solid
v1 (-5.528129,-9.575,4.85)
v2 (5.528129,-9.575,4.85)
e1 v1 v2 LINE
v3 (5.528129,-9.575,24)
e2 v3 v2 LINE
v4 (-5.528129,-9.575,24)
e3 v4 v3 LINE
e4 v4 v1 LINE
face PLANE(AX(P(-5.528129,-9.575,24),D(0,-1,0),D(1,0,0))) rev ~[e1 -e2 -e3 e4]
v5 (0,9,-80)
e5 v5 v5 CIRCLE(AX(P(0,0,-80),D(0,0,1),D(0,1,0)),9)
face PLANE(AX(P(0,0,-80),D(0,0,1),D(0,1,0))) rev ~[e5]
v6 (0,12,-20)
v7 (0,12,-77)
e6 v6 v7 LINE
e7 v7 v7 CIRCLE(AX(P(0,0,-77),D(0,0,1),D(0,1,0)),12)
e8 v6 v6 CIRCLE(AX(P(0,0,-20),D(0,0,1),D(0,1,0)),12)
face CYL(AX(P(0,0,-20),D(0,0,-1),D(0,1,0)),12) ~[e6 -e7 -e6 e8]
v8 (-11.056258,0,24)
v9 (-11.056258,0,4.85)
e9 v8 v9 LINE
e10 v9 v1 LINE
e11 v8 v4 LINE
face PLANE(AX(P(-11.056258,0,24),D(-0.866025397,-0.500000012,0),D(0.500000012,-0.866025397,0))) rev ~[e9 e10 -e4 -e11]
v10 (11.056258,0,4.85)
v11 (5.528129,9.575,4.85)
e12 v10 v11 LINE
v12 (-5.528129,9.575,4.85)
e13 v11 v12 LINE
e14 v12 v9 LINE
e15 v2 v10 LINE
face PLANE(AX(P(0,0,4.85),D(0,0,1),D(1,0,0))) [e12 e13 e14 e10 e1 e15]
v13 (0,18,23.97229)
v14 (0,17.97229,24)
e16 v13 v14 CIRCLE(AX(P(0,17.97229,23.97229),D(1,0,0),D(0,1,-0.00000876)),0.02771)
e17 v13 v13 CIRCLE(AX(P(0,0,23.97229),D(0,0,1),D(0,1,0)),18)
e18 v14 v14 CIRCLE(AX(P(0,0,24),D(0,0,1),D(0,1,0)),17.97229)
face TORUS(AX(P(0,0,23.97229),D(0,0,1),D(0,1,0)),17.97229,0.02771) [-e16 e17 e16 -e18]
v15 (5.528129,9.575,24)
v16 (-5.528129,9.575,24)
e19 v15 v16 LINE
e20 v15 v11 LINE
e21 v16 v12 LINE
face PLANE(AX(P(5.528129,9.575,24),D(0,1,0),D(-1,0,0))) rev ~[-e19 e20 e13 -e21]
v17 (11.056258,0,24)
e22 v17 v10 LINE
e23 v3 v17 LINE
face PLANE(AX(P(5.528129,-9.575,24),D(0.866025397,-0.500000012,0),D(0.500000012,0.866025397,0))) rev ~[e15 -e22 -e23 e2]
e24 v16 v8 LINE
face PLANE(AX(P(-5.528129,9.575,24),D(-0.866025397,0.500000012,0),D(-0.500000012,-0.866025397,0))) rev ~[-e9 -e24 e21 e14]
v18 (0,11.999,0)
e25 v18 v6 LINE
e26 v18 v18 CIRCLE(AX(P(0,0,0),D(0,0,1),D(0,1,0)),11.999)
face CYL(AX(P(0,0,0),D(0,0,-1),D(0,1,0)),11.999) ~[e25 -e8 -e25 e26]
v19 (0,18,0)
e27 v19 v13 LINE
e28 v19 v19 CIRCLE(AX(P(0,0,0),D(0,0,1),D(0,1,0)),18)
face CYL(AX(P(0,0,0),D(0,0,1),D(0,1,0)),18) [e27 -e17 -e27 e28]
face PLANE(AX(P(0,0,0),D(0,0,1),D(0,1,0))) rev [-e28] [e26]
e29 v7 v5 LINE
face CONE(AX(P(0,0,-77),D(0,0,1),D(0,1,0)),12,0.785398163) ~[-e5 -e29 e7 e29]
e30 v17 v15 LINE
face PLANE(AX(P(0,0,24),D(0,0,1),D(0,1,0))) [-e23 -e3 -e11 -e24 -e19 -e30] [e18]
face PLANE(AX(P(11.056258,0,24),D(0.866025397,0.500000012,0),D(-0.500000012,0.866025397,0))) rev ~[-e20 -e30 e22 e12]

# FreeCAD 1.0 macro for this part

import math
import FreeCAD as App
import Part
import Sketcher
Q = App.Units.Quantity

doc = App.newDocument("Part")
params = doc.addObject("Spreadsheet::Sheet", "Params")
for row, (alias, value) in enumerate([
    ("sketch1_width", "9 mm"),
    ("sketch1_height", "104 mm"),
    ("sketch1_height2", "57 mm"),
    ("sketch1_length", "20 mm"),
    ("revolution_angle", "360 deg"),
    ("pocket1_length", "19.15 mm"),
], start=1):
    params.set(f"A{row}", alias)
    params.set(f"B{row}", "=" + value)
    params.setAlias(f"B{row}", alias)

body = doc.addObject("PartDesign::Body", "Body")

# Sketch on YZ plane
sketch1 = body.newObject("Sketcher::SketchObject", "Sketch")
sketch1.AttachmentSupport = (doc.getObject("YZ_Plane"), [""])
sketch1.MapMode = "FlatFace"
sketch1.addGeometry([
    Part.LineSegment(App.Vector(11.999, 0, 0), App.Vector(18, 0, 0)),  # 0
    Part.LineSegment(App.Vector(18, 0, 0), App.Vector(18, 23.972, 0)),  # 1
    Part.ArcOfCircle(Part.Circle(App.Vector(17.972, 23.972, 0), App.Vector(0, 0, 1), 0.028), math.radians(0), math.radians(90)),  # 2
    Part.LineSegment(App.Vector(17.972, 24, 0), App.Vector(0, 24, 0)),  # 3
    Part.LineSegment(App.Vector(0, 24, 0), App.Vector(0, -80, 0)),  # 4
    Part.LineSegment(App.Vector(0, -80, 0), App.Vector(9, -80, 0)),  # 5
    Part.LineSegment(App.Vector(9, -80, 0), App.Vector(12, -77, 0)),  # 6
    Part.LineSegment(App.Vector(12, -77, 0), App.Vector(12, -20, 0)),  # 7
    Part.LineSegment(App.Vector(12, -20, 0), App.Vector(11.999, 0, 0)),  # 8
], False)
sketch1.addConstraint([
    Sketcher.Constraint("Coincident", 0, 2, 1, 1),
    Sketcher.Constraint("Coincident", 1, 2, 2, 1),
    Sketcher.Constraint("Coincident", 2, 2, 3, 1),
    Sketcher.Constraint("Coincident", 3, 2, 4, 1),
    Sketcher.Constraint("Coincident", 4, 2, 5, 1),
    Sketcher.Constraint("Coincident", 5, 2, 6, 1),
    Sketcher.Constraint("Coincident", 6, 2, 7, 1),
    Sketcher.Constraint("Coincident", 7, 2, 8, 1),
    Sketcher.Constraint("Coincident", 8, 2, 0, 1),
    Sketcher.Constraint("Horizontal", 0),
    Sketcher.Constraint("Vertical", 1),
    Sketcher.Constraint("Horizontal", 3),
    Sketcher.Constraint("Vertical", 4),
    Sketcher.Constraint("Horizontal", 5),
    Sketcher.Constraint("Vertical", 7),
    Sketcher.Constraint("PointOnObject", 0, 2, -1),
    Sketcher.Constraint("PointOnObject", 3, 2, -2),
    Sketcher.Constraint("Horizontal", 2, 3, 1, 2),
    Sketcher.Constraint("DistanceX", 5, 1, 5, 2, Q("9 mm")),
    Sketcher.Constraint("DistanceY", 4, 2, 4, 1, Q("104 mm")),
    Sketcher.Constraint("DistanceY", 7, 1, 7, 2, Q("57 mm")),
    Sketcher.Constraint("Angle", 6, Q("45 deg")),
    Sketcher.Constraint("Distance", 8, Q("20 mm")),
    Sketcher.Constraint("DistanceX", -1, 1, 0, 2, Q("18 mm")),
    Sketcher.Constraint("DistanceY", -1, 1, 2, 2, Q("24 mm")),
    Sketcher.Constraint("DistanceX", 0, 1, 0, 2, Q("6.001 mm")),
    Sketcher.Constraint("Radius", 2, Q("0.02771 mm")),
    Sketcher.Constraint("DistanceX", 3, 2, 3, 1, Q("17.97229 mm")),
])
sketch1.setExpression("Constraints[18]", "Params.sketch1_width")
sketch1.setExpression("Constraints[19]", "Params.sketch1_height")
sketch1.setExpression("Constraints[20]", "Params.sketch1_height2")
sketch1.setExpression("Constraints[22]", "Params.sketch1_length")
revolution = body.newObject("PartDesign::Revolution", "Revolution")
revolution.Profile = sketch1
revolution.ReferenceAxis = (sketch1, ["V_Axis"])
revolution.setExpression("Angle", "Params.revolution_angle")

# Sketch on XY plane
sketch2 = body.newObject("Sketcher::SketchObject", "Sketch001")
sketch2.AttachmentSupport = (doc.getObject("XY_Plane"), [""])
sketch2.MapMode = "FlatFace"
sketch2.AttachmentOffset = App.Placement(App.Vector(0, 0, 24), App.Rotation())
sketch2.addGeometry([
    Part.LineSegment(App.Vector(11, 0, 0), App.Vector(6, 10, 0)),  # 0
    Part.LineSegment(App.Vector(6, 10, 0), App.Vector(-6, 10, 0)),  # 1
    Part.LineSegment(App.Vector(-6, 10, 0), App.Vector(-11, 0, 0)),  # 2
    Part.LineSegment(App.Vector(-11, 0, 0), App.Vector(-6, -10, 0)),  # 3
    Part.LineSegment(App.Vector(-6, -10, 0), App.Vector(6, -10, 0)),  # 4
    Part.LineSegment(App.Vector(6, -10, 0), App.Vector(11, 0, 0)),  # 5
], False)
sketch2.addConstraint([
    Sketcher.Constraint("Coincident", 0, 2, 1, 1),
    Sketcher.Constraint("Coincident", 1, 2, 2, 1),
    Sketcher.Constraint("Coincident", 2, 2, 3, 1),
    Sketcher.Constraint("Coincident", 3, 2, 4, 1),
    Sketcher.Constraint("Coincident", 4, 2, 5, 1),
    Sketcher.Constraint("Coincident", 5, 2, 0, 1),
    Sketcher.Constraint("Horizontal", 1),
    Sketcher.Constraint("Horizontal", 4),
    Sketcher.Constraint("Symmetric", 0, 2, 3, 2, -1, 1),
    Sketcher.Constraint("Symmetric", 2, 2, 5, 2, -1, 1),
    Sketcher.Constraint("PointOnObject", 2, 2, -1),
    Sketcher.Constraint("Parallel", 2, 5),
    Sketcher.Constraint("Vertical", 1, 2, 3, 2),
    Sketcher.Constraint("Angle", 0, Q("120.000001 deg")),
    Sketcher.Constraint("DistanceY", 3, 2, 1, 2, Q("19.15 mm")),
    Sketcher.Constraint("DistanceX", 1, 2, 1, 1, Q("11.056258 mm")),
])
pocket1 = body.newObject("PartDesign::Pocket", "Pocket")
pocket1.Profile = sketch2
pocket1.setExpression("Length", "Params.pocket1_length")

doc.recompute()
